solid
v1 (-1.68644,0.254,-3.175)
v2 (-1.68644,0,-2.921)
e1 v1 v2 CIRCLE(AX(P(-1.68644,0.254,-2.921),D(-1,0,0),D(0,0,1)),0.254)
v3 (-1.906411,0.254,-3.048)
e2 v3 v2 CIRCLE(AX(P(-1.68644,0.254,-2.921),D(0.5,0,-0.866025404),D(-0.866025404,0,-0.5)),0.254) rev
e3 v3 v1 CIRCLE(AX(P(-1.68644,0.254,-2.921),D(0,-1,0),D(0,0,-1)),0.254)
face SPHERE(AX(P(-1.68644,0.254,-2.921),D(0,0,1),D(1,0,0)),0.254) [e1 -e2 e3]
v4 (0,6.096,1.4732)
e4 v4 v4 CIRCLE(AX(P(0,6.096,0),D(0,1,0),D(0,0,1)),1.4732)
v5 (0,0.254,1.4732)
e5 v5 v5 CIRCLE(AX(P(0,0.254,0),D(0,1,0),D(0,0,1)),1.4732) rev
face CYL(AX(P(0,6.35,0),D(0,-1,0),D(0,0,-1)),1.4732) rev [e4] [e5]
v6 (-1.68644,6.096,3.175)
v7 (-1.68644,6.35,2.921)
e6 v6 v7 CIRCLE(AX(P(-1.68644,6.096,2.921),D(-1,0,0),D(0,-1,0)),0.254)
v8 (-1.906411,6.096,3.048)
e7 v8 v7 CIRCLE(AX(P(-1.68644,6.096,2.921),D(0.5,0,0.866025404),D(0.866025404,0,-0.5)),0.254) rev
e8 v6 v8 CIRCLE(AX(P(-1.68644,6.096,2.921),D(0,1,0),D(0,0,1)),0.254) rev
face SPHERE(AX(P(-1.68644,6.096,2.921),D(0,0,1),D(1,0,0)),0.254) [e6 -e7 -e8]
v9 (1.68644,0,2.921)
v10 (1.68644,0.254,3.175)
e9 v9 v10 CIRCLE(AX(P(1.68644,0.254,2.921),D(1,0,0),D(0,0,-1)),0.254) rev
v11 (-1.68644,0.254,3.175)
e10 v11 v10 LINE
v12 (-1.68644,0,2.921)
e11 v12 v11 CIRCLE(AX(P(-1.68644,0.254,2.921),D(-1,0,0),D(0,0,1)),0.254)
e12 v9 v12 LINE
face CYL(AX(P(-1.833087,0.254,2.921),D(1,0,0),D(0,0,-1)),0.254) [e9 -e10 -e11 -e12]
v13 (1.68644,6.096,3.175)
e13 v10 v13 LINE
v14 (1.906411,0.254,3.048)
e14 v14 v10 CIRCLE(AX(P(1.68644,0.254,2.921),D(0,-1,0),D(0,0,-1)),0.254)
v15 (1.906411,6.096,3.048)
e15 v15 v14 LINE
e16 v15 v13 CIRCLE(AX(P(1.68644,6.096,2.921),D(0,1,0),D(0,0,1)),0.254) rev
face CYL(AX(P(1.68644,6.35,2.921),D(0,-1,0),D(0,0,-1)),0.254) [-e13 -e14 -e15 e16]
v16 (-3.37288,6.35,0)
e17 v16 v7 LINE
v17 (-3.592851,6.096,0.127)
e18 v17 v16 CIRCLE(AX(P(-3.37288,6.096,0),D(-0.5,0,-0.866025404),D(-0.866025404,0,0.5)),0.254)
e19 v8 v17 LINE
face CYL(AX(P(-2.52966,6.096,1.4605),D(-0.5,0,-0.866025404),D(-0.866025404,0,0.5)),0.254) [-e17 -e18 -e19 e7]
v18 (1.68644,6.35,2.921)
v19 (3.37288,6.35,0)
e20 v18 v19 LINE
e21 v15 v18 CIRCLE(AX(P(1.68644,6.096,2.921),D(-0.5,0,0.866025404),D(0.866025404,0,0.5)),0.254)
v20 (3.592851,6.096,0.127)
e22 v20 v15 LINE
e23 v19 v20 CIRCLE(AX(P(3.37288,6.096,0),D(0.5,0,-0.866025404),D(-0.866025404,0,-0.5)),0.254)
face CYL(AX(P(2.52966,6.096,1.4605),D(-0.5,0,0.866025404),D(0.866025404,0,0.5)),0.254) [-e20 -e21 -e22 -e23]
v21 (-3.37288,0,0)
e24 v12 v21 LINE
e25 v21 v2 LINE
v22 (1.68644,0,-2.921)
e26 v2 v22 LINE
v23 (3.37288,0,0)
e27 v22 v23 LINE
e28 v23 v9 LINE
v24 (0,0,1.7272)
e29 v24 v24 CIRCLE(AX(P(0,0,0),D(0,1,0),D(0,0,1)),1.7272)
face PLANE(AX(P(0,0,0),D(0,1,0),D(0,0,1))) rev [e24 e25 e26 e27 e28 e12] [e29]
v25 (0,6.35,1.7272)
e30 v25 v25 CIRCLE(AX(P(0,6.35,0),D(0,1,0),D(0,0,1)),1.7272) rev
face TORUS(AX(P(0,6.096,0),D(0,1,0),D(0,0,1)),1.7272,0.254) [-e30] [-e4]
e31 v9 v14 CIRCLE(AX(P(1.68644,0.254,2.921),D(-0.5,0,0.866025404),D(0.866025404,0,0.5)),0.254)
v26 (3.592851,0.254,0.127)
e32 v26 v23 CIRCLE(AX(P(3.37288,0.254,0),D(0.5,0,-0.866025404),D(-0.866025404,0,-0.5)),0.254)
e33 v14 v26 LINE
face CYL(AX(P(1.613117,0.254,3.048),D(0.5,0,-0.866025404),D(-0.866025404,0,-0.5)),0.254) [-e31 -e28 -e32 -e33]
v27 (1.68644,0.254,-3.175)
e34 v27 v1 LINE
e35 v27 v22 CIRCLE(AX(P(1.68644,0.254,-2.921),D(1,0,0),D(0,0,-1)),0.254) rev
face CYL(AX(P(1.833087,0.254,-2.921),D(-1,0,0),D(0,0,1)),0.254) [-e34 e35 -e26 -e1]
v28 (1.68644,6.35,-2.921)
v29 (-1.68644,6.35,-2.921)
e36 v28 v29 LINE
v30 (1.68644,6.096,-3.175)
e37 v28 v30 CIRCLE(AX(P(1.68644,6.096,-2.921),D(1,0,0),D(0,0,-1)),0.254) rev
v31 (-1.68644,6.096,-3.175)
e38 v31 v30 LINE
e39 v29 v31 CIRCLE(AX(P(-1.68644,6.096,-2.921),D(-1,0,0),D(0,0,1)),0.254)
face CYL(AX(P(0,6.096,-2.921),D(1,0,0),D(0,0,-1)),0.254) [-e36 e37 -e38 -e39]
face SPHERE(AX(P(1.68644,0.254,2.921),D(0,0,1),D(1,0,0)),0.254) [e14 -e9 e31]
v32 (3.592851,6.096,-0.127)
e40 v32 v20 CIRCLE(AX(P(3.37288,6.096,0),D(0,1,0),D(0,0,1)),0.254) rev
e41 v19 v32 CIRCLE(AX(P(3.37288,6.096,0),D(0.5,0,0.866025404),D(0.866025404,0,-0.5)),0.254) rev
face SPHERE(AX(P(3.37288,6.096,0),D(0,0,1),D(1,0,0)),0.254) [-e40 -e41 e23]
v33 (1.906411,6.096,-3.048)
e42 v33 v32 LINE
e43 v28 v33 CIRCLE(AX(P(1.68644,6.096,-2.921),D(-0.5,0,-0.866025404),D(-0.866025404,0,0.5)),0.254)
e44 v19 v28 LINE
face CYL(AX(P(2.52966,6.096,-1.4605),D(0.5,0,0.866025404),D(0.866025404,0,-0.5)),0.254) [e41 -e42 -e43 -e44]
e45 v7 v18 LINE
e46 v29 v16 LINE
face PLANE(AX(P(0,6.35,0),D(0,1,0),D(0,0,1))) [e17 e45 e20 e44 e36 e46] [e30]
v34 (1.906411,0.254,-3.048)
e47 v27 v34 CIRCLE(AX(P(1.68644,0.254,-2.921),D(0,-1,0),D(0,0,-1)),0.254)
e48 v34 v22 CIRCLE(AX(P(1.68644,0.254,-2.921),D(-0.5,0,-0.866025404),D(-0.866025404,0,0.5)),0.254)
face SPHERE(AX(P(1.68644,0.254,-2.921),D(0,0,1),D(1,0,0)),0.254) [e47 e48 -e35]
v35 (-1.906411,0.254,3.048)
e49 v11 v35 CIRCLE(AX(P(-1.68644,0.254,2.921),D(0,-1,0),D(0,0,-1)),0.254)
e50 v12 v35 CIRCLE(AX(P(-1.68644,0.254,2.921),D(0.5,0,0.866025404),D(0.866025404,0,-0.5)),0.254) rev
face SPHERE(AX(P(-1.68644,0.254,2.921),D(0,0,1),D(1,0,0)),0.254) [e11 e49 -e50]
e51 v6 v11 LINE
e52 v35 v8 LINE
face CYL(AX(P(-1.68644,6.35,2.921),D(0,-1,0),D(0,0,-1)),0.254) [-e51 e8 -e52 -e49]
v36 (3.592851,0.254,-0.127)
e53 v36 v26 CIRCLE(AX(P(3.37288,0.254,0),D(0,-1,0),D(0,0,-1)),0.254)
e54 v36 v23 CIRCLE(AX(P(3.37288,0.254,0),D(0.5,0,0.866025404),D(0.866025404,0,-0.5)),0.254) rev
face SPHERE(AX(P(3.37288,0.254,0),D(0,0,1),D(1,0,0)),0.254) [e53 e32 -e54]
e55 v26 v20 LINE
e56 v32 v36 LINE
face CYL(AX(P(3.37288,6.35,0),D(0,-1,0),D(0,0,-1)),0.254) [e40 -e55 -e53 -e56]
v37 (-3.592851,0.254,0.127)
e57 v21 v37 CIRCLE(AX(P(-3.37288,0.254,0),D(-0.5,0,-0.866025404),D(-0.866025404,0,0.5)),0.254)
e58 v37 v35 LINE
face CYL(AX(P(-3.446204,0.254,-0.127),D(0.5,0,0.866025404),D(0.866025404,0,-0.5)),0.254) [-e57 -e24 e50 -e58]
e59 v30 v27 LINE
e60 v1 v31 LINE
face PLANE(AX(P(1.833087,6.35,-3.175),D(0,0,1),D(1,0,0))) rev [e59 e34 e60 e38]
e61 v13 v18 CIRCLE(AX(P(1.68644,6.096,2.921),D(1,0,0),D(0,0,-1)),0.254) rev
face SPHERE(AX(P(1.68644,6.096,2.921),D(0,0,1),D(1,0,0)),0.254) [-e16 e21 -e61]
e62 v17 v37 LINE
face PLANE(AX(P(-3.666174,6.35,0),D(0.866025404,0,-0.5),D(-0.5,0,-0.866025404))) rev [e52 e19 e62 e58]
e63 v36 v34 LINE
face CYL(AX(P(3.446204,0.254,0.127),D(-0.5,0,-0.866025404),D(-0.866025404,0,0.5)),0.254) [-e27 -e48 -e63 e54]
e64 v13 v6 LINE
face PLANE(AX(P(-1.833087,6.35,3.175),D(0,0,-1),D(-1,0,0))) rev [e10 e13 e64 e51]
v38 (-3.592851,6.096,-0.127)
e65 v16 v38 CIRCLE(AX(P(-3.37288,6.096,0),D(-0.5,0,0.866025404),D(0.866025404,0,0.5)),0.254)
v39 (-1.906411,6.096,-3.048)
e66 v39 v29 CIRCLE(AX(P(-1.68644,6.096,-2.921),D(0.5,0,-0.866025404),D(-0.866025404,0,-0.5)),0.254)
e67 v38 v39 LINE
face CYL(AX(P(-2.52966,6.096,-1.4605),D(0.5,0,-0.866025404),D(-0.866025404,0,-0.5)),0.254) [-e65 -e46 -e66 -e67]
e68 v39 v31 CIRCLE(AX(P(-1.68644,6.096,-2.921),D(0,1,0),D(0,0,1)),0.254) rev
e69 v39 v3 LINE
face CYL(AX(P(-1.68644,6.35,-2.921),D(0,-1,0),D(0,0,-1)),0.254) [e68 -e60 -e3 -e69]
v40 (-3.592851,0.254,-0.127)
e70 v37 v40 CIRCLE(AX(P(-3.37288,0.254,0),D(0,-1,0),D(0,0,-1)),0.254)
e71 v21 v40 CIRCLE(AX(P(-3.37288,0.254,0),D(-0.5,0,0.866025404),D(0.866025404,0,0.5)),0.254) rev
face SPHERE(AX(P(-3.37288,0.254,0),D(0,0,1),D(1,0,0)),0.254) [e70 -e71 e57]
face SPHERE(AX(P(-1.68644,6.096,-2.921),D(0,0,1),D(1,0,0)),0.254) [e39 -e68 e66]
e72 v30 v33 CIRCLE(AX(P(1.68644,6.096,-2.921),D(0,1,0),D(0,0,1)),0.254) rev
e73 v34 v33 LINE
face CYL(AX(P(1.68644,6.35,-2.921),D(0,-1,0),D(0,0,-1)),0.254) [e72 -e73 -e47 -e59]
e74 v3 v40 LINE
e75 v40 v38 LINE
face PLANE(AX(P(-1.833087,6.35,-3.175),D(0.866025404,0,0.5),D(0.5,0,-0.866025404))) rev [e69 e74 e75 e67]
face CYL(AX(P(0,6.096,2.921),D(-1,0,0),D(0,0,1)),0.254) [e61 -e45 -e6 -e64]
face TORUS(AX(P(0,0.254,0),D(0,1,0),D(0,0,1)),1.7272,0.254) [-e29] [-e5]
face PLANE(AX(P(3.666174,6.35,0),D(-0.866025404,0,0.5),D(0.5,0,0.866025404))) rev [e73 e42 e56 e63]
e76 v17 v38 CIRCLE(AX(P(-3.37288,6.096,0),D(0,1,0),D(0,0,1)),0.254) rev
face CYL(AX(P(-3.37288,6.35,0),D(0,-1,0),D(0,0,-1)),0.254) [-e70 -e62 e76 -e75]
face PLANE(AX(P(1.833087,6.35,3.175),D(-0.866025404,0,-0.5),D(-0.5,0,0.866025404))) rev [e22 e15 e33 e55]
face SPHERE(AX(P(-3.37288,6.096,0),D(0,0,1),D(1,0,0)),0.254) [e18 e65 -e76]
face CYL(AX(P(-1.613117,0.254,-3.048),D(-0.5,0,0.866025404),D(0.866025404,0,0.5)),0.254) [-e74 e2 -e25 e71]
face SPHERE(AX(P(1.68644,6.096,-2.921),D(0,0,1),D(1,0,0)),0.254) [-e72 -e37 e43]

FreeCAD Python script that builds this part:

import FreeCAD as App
import Part
import Sketcher
from FreeCAD import Vector
Q = App.Units.Quantity

doc = App.newDocument("Part")
body = doc.addObject("PartDesign::Body", "Body")

# Sketch on XZ plane
sketch1 = doc.addObject("Sketcher::SketchObject", "Sketch")
body.addObject(sketch1)
sketch1.AttachmentSupport = (doc.XZ_Plane, [""])
sketch1.MapMode = "FlatFace"
sketch1.addGeometry(Part.LineSegment(Vector(1.833087, 3.175, 0), Vector(3.666174, 0, 0)), False)
sketch1.addGeometry(Part.LineSegment(Vector(3.666174, 0, 0), Vector(1.833087, -3.175, 0)), False)
sketch1.addGeometry(Part.LineSegment(Vector(1.833087, -3.175, 0), Vector(-1.833087, -3.175, 0)), False)
sketch1.addGeometry(Part.LineSegment(Vector(-1.833087, -3.175, 0), Vector(-3.666174, 0, 0)), False)
sketch1.addGeometry(Part.LineSegment(Vector(-3.666174, 0, 0), Vector(-1.833087, 3.175, 0)), False)
sketch1.addGeometry(Part.LineSegment(Vector(-1.833087, 3.175, 0), Vector(1.833087, 3.175, 0)), False)
sketch1.addGeometry(Part.Circle(Vector(0, 0, 0), Vector(0, 0, 1), 1.4732), False)
sketch1.addConstraint(Sketcher.Constraint("Coincident", 0, 2, 1, 1))
sketch1.addConstraint(Sketcher.Constraint("Coincident", 1, 2, 2, 1))
sketch1.addConstraint(Sketcher.Constraint("Coincident", 2, 2, 3, 1))
sketch1.addConstraint(Sketcher.Constraint("Coincident", 3, 2, 4, 1))
sketch1.addConstraint(Sketcher.Constraint("Coincident", 4, 2, 5, 1))
sketch1.addConstraint(Sketcher.Constraint("Coincident", 5, 2, 0, 1))
sketch1.addConstraint(Sketcher.Constraint("Horizontal", 2))
sketch1.addConstraint(Sketcher.Constraint("Horizontal", 5))
sketch1.addConstraint(Sketcher.Constraint("Coincident", 6, 3, -1, 1))
sketch1.addConstraint(Sketcher.Constraint("Symmetric", 0, 2, 3, 2, -1, 1))
sketch1.addConstraint(Sketcher.Constraint("Symmetric", 1, 2, 4, 2, -1, 1))
sketch1.addConstraint(Sketcher.Constraint("PointOnObject", 0, 2, -1))
sketch1.addConstraint(Sketcher.Constraint("Parallel", 0, 3))
sketch1.addConstraint(Sketcher.Constraint("Vertical", 2, 2, 4, 2))
sketch1.addConstraint(Sketcher.Constraint("Diameter", 6, Q("0.116 in")))
sketch1.addConstraint(Sketcher.Constraint("Angle", 0, Q("-60 deg")))
sketch1.addConstraint(Sketcher.Constraint("DistanceY", 2, 2, 4, 2, Q("0.25 in")))
sketch1.addConstraint(Sketcher.Constraint("DistanceX", 2, 2, 2, 1, 3.666174))
pad1 = doc.addObject("PartDesign::Pad", "Pad")
body.addObject(pad1)
pad1.Profile = sketch1
pad1.Length = Q("0.25 in")
pad1.Reversed = True
doc.recompute()

fillet = doc.addObject("PartDesign::Fillet", "Fillet")
body.addObject(fillet)
fillet.Base = (pad1, ["Edge1"])
fillet.UseAllEdges = True
fillet.Radius = Q("0.01 in")

doc.recompute()
